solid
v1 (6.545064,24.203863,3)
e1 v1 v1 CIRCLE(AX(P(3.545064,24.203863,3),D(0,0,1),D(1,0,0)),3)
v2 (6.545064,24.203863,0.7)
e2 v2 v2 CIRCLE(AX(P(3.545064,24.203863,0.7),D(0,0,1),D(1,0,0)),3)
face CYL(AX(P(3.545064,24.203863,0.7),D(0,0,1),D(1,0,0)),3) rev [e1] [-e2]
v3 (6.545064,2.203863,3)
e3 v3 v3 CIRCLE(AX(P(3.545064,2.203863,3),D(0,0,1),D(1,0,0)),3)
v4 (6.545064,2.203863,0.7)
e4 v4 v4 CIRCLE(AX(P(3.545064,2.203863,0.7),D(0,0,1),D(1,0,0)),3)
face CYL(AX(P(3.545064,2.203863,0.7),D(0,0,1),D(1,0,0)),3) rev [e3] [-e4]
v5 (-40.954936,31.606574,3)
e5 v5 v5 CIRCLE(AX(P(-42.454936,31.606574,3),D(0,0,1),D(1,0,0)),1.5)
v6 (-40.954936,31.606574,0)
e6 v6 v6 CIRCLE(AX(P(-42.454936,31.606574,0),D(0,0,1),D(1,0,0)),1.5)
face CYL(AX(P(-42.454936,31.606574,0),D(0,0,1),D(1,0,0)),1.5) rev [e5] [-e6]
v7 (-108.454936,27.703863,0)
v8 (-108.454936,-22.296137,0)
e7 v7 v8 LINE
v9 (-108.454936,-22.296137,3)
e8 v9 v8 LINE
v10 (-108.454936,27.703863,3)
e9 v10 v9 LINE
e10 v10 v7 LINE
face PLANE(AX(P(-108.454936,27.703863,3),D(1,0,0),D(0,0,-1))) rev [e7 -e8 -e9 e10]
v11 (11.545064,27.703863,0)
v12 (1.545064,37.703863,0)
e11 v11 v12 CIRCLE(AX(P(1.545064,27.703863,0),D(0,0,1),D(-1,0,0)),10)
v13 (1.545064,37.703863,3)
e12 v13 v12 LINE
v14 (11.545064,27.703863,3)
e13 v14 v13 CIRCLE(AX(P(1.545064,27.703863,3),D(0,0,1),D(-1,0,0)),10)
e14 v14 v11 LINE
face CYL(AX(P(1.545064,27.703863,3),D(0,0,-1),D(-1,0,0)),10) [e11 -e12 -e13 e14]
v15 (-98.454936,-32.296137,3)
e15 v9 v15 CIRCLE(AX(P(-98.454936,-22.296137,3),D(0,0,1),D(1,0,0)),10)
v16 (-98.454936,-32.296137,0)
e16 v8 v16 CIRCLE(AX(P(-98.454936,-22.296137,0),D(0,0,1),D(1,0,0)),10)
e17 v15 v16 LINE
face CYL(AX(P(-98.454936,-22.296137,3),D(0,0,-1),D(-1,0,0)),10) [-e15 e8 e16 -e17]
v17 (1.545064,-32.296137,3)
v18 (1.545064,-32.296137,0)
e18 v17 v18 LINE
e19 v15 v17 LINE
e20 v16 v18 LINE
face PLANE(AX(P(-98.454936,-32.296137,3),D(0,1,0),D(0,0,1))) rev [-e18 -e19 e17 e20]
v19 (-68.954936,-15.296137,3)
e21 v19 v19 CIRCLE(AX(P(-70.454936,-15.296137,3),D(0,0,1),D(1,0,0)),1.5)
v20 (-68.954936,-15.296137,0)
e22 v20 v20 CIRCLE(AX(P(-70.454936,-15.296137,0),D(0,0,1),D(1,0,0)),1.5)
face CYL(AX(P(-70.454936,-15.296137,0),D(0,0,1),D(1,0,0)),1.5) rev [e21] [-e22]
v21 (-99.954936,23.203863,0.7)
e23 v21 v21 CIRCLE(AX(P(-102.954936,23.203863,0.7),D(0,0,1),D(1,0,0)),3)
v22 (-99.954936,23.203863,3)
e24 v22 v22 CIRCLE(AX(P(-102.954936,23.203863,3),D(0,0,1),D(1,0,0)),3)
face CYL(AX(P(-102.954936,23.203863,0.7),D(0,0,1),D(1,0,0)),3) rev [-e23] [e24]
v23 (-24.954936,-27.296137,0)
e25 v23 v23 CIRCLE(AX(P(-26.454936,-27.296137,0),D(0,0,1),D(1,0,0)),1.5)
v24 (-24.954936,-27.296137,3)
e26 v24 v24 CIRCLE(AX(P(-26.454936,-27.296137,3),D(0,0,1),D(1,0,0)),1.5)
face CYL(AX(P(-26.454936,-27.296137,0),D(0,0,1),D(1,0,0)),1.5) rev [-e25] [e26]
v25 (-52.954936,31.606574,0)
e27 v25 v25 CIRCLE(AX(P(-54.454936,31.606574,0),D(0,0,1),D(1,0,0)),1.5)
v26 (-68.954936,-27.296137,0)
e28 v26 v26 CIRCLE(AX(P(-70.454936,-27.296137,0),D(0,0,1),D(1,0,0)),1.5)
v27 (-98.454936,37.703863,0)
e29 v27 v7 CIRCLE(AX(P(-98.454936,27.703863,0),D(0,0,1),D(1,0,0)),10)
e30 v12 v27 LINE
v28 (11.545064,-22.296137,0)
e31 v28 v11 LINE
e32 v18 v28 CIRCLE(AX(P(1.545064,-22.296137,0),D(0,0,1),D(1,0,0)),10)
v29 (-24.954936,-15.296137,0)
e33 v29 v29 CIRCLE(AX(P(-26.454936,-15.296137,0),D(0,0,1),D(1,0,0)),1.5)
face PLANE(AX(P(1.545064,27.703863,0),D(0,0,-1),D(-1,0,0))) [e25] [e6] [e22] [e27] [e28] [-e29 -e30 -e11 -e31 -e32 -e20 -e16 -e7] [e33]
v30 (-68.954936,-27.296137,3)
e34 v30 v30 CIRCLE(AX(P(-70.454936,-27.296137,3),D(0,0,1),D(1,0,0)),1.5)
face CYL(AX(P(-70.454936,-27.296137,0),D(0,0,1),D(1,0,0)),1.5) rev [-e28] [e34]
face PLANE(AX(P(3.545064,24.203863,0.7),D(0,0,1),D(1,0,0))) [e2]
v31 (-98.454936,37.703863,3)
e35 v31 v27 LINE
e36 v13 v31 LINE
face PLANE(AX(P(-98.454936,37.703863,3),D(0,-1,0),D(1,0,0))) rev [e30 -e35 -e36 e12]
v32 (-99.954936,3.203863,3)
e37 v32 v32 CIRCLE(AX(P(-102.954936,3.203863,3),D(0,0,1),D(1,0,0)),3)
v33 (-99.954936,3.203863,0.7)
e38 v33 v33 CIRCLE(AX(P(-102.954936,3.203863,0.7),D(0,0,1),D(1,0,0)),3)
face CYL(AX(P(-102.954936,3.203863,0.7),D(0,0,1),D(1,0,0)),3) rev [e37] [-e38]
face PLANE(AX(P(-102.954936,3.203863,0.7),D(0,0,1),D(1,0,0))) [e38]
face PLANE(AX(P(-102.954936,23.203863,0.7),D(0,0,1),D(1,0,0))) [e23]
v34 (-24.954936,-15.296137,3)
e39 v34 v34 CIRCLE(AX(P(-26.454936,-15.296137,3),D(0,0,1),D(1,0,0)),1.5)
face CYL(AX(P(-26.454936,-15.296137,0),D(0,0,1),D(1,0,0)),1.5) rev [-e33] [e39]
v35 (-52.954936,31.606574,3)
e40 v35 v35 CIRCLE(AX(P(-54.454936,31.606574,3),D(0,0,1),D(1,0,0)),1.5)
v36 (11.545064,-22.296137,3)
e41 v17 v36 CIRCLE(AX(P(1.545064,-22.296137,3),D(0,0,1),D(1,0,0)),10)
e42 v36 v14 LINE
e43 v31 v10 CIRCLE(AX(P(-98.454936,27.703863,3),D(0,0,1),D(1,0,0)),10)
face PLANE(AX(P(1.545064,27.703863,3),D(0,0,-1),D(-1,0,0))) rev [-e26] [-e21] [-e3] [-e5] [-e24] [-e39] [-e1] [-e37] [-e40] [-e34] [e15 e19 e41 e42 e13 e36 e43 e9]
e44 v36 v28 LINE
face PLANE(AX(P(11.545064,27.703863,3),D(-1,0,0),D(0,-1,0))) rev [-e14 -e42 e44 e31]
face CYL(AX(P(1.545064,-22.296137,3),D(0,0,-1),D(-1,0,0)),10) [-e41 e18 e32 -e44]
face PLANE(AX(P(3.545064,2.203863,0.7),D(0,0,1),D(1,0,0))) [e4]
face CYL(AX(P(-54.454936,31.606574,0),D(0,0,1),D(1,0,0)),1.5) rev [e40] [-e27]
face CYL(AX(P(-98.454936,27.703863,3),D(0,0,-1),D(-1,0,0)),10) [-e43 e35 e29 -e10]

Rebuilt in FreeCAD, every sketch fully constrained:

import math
import FreeCAD as App
import Part
import Sketcher
Q = App.Units.Quantity

doc = App.newDocument("Part")
body = doc.addObject("PartDesign::Body", "Body")

# Sketch on XY plane
sketch1 = doc.addObject("Sketcher::SketchObject", "Sketch")
body.addObject(sketch1)
sketch1.AttachmentSupport = (doc.XY_Plane, [""])
sketch1.MapMode = "FlatFace"
sketch1.addGeometry([
    Part.LineSegment(App.Vector(2, 38, 0), App.Vector(-98, 38, 0)),  # 0
    Part.ArcOfCircle(Part.Circle(App.Vector(-98, 28, 0), App.Vector(0, 0, 1), 10), math.radians(90), math.radians(180)),  # 1
    Part.LineSegment(App.Vector(-108, 28, 0), App.Vector(-108, -22, 0)),  # 2
    Part.ArcOfCircle(Part.Circle(App.Vector(-98, -22, 0), App.Vector(0, 0, 1), 10), math.radians(180), math.radians(270)),  # 3
    Part.LineSegment(App.Vector(-98, -32, 0), App.Vector(2, -32, 0)),  # 4
    Part.ArcOfCircle(Part.Circle(App.Vector(2, -22, 0), App.Vector(0, 0, 1), 10), math.radians(-90), math.radians(0)),  # 5
    Part.LineSegment(App.Vector(12, -22, 0), App.Vector(12, 28, 0)),  # 6
    Part.ArcOfCircle(Part.Circle(App.Vector(2, 28, 0), App.Vector(0, 0, 1), 10), math.radians(0), math.radians(90)),  # 7
], False)
sketch1.addConstraint([
    Sketcher.Constraint("Tangent", 0, 2, 1, 1),
    Sketcher.Constraint("Tangent", 1, 2, 2, 1),
    Sketcher.Constraint("Tangent", 2, 2, 3, 1),
    Sketcher.Constraint("Tangent", 3, 2, 4, 1),
    Sketcher.Constraint("Tangent", 4, 2, 5, 1),
    Sketcher.Constraint("Tangent", 5, 2, 6, 1),
    Sketcher.Constraint("Tangent", 6, 2, 7, 1),
    Sketcher.Constraint("Tangent", 7, 2, 0, 1),
    Sketcher.Constraint("Horizontal", 0),
    Sketcher.Constraint("Vertical", 2),
    Sketcher.Constraint("Horizontal", 4),
    Sketcher.Constraint("Vertical", 6),
    Sketcher.Constraint("Equal", 1, 3),
    Sketcher.Constraint("Equal", 3, 5),
    Sketcher.Constraint("Equal", 5, 7),
    Sketcher.Constraint("Radius", 1, Q("10 mm")),
    Sketcher.Constraint("DistanceX", 0, 2, 0, 1, Q("100 mm")),
    Sketcher.Constraint("DistanceY", 2, 2, 2, 1, Q("50 mm")),
    Sketcher.Constraint("DistanceX", 1, 3, -1, 1, Q("98.454936 mm")),
    Sketcher.Constraint("DistanceY", -1, 1, 1, 3, Q("27.703863 mm")),
])
pad1 = doc.addObject("PartDesign::Pad", "Pad")
body.addObject(pad1)
pad1.Profile = sketch1
pad1.Length = 3

# Sketch on XY plane
sketch2 = doc.addObject("Sketcher::SketchObject", "Sketch001")
body.addObject(sketch2)
sketch2.AttachmentSupport = (doc.XY_Plane, [""])
sketch2.MapMode = "FlatFace"
sketch2.AttachmentOffset = App.Placement(App.Vector(0, 0, 3), App.Rotation())
sketch2.addGeometry([
    Part.Circle(App.Vector(-54.5, 31.6, 0), App.Vector(0, 0, 1), 1.5),  # 0
    Part.Circle(App.Vector(-42.5, 31.6, 0), App.Vector(0, 0, 1), 1.5),  # 1
    Part.Circle(App.Vector(-70.5, -15.3, 0), App.Vector(0, 0, 1), 1.5),  # 2
    Part.Circle(App.Vector(-70.5, -27.3, 0), App.Vector(0, 0, 1), 1.5),  # 3
    Part.Circle(App.Vector(-26.5, -15.3, 0), App.Vector(0, 0, 1), 1.5),  # 4
    Part.Circle(App.Vector(-26.5, -27.3, 0), App.Vector(0, 0, 1), 1.5),  # 5
], False)
sketch2.addConstraint([
    Sketcher.Constraint("Equal", 0, 1),
    Sketcher.Constraint("Equal", 1, 2),
    Sketcher.Constraint("Equal", 2, 3),
    Sketcher.Constraint("Equal", 3, 4),
    Sketcher.Constraint("Equal", 4, 5),
    Sketcher.Constraint("Horizontal", 0, 3, 1, 3),
    Sketcher.Constraint("Horizontal", 2, 3, 4, 3),
    Sketcher.Constraint("Horizontal", 3, 3, 5, 3),
    Sketcher.Constraint("Vertical", 2, 3, 3, 3),
    Sketcher.Constraint("Vertical", 4, 3, 5, 3),
    Sketcher.Constraint("Diameter", 0, Q("3 mm")),
    Sketcher.Constraint("DistanceX", 0, 3, 1, 3, Q("12 mm")),
    Sketcher.Constraint("DistanceX", 2, 3, 0, 3, Q("16 mm")),
    Sketcher.Constraint("DistanceY", 3, 3, 2, 3, Q("12 mm")),
    Sketcher.Constraint("DistanceX", 2, 3, 4, 3, Q("44 mm")),
    Sketcher.Constraint("DistanceY", 2, 3, 0, 3, Q("46.902711 mm")),
    Sketcher.Constraint("DistanceX", 0, 3, -1, 1, Q("54.454936 mm")),
    Sketcher.Constraint("DistanceY", -1, 1, 0, 3, Q("31.606574 mm")),
])
pocket1 = doc.addObject("PartDesign::Pocket", "Pocket")
body.addObject(pocket1)
pocket1.Profile = sketch2
pocket1.Type = "ThroughAll"

# Sketch on XY plane
sketch3 = doc.addObject("Sketcher::SketchObject", "Sketch002")
body.addObject(sketch3)
sketch3.AttachmentSupport = (doc.XY_Plane, [""])
sketch3.MapMode = "FlatFace"
sketch3.AttachmentOffset = App.Placement(App.Vector(0, 0, 3), App.Rotation())
sketch3.addGeometry([
    Part.Circle(App.Vector(-103, 23.2, 0), App.Vector(0, 0, 1), 3),
    Part.Circle(App.Vector(-103, 3.2, 0), App.Vector(0, 0, 1), 3),
    Part.Circle(App.Vector(3.5, 24.2, 0), App.Vector(0, 0, 1), 3),
    Part.Circle(App.Vector(3.5, 2.2, 0), App.Vector(0, 0, 1), 3),
], False)
sketch3.addConstraint([
    Sketcher.Constraint("Equal", 0, 1),
    Sketcher.Constraint("Equal", 1, 2),
    Sketcher.Constraint("Equal", 2, 3),
    Sketcher.Constraint("Vertical", 0, 3, 1, 3),
    Sketcher.Constraint("Vertical", 2, 3, 3, 3),
    Sketcher.Constraint("Diameter", 0, Q("6 mm")),
    Sketcher.Constraint("DistanceY", 1, 3, 0, 3, Q("20 mm")),
    Sketcher.Constraint("DistanceY", 0, 3, 2, 3, Q("1 mm")),
    Sketcher.Constraint("DistanceY", 3, 3, 2, 3, Q("22 mm")),
    Sketcher.Constraint("DistanceX", 0, 3, 2, 3, Q("106.5 mm")),
    Sketcher.Constraint("DistanceX", 0, 3, -1, 1, Q("102.954936 mm")),
    Sketcher.Constraint("DistanceY", -1, 1, 0, 3, Q("23.203863 mm")),
])
pocket2 = doc.addObject("PartDesign::Pocket", "Pocket001")
body.addObject(pocket2)
pocket2.Profile = sketch3
pocket2.Length = 2.3

doc.recompute()
